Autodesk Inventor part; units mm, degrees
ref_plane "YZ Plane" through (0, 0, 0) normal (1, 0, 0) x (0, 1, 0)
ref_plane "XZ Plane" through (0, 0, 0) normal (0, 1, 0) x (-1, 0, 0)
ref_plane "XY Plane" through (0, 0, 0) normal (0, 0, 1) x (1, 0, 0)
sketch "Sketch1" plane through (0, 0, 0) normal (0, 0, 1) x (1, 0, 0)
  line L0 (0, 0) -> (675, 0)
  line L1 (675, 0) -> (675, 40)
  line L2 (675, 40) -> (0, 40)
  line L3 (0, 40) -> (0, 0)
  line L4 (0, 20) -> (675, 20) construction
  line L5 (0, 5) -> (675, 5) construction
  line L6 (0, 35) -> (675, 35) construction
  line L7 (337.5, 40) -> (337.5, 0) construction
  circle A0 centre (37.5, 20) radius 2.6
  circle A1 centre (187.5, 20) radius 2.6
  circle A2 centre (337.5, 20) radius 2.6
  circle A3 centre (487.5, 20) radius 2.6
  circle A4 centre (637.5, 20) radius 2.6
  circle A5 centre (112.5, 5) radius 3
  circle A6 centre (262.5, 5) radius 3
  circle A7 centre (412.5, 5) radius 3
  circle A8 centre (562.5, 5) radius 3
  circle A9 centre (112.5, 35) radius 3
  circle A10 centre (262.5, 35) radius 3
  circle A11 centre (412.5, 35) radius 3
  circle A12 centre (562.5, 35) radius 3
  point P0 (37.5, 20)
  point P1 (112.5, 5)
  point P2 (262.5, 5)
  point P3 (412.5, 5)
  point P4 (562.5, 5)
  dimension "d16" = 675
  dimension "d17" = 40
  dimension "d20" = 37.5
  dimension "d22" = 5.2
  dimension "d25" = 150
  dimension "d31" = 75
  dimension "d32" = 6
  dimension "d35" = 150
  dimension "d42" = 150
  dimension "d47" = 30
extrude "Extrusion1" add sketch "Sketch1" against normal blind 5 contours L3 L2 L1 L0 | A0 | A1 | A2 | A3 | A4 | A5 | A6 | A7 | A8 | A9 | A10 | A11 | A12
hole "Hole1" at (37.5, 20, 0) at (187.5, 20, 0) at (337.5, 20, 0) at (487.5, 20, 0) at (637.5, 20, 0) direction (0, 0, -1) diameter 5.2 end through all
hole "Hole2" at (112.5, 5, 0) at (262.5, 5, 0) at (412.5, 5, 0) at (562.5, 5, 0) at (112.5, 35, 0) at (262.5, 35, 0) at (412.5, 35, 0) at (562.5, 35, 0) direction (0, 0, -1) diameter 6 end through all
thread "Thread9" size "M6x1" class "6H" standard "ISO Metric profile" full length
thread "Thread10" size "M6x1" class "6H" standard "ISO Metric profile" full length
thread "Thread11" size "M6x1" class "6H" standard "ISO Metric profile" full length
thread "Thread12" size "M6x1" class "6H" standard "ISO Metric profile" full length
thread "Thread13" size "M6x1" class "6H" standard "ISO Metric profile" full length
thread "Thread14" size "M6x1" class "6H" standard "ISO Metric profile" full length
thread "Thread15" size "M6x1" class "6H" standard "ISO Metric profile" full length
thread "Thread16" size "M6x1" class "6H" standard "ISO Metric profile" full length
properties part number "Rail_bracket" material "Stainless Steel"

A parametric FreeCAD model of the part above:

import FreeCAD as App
import Part
import Sketcher
from FreeCAD import Vector

doc = App.newDocument("Part")
params = doc.addObject("Spreadsheet::Sheet", "Params")
for row, (alias, value) in enumerate([
    ("sketch1_width", "675 mm"),
    ("sketch1_height", "40 mm"),
    ("pad1_length", "5 mm"),
    ("sketch2_diameter", "5.2 mm"),
    ("hole_diameter", "5.2 mm"),
    ("sketch3_diameter", "6 mm"),
    ("hole2_diameter", "6 mm"),
], start=1):
    params.set(f"A{row}", alias)
    params.set(f"B{row}", "=" + value)
    params.setAlias(f"B{row}", alias)

body = doc.addObject("PartDesign::Body", "Body")

# Sketch on XY plane
sketch1 = body.newObject("Sketcher::SketchObject", "Sketch")
sketch1.AttachmentSupport = (doc.getObject("XY_Plane"), [""])
sketch1.MapMode = "FlatFace"
sketch1.addGeometry([
    Part.LineSegment(Vector(0, 40, 0), Vector(0, 0, 0)),
    Part.LineSegment(Vector(0, 0, 0), Vector(675, 0, 0)),
    Part.LineSegment(Vector(675, 0, 0), Vector(675, 40, 0)),
    Part.LineSegment(Vector(675, 40, 0), Vector(0, 40, 0)),
], False)
sketch1.addConstraint([
    Sketcher.Constraint("Coincident", 0, 2, 1, 1),
    Sketcher.Constraint("Coincident", 1, 2, 2, 1),
    Sketcher.Constraint("Coincident", 2, 2, 3, 1),
    Sketcher.Constraint("Coincident", 3, 2, 0, 1),
    Sketcher.Constraint("Vertical", 0),
    Sketcher.Constraint("Horizontal", 1),
    Sketcher.Constraint("Vertical", 2),
    Sketcher.Constraint("Horizontal", 3),
    Sketcher.Constraint("Coincident", 0, 2, -1, 1),
    Sketcher.Constraint("DistanceX", 1, 1, 1, 2, 675.0),
    Sketcher.Constraint("DistanceY", 0, 2, 0, 1, 40.0),
])
sketch1.setExpression("Constraints[9]", "Params.sketch1_width")
sketch1.setExpression("Constraints[10]", "Params.sketch1_height")
pad1 = body.newObject("PartDesign::Pad", "Pad")
pad1.Profile = sketch1
pad1.setExpression("Length", "Params.pad1_length")
pad1.Reversed = True

# Sketch on XY plane
sketch2 = body.newObject("Sketcher::SketchObject", "Sketch001")
sketch2.AttachmentSupport = (doc.getObject("XY_Plane"), [""])
sketch2.MapMode = "FlatFace"
sketch2.addGeometry([
    Part.Circle(Vector(37.5, 20, 0), Vector(0, 0, 1), 2.6),  # 0
    Part.Circle(Vector(187.5, 20, 0), Vector(0, 0, 1), 2.6),  # 1
    Part.Circle(Vector(337.5, 20, 0), Vector(0, 0, 1), 2.6),  # 2
    Part.Circle(Vector(487.5, 20, 0), Vector(0, 0, 1), 2.6),  # 3
    Part.Circle(Vector(637.5, 20, 0), Vector(0, 0, 1), 2.6),  # 4
], False)
sketch2.addConstraint([
    Sketcher.Constraint("Equal", 0, 1),
    Sketcher.Constraint("Equal", 1, 2),
    Sketcher.Constraint("Equal", 2, 3),
    Sketcher.Constraint("Equal", 3, 4),
    Sketcher.Constraint("Horizontal", 0, 3, 1, 3),
    Sketcher.Constraint("Horizontal", 1, 3, 2, 3),
    Sketcher.Constraint("Horizontal", 2, 3, 3, 3),
    Sketcher.Constraint("Horizontal", 3, 3, 4, 3),
    Sketcher.Constraint("Diameter", 0, 5.2),
    Sketcher.Constraint("DistanceY", -1, 1, 0, 3, 20.0),
    Sketcher.Constraint("DistanceX", 0, 3, 1, 3, 150.0),
    Sketcher.Constraint("DistanceX", 1, 3, 2, 3, 150.0),
    Sketcher.Constraint("DistanceX", 2, 3, 3, 3, 150.0),
    Sketcher.Constraint("DistanceX", 3, 3, 4, 3, 150.0),
    Sketcher.Constraint("DistanceX", -1, 1, 0, 3, 37.5),
])
sketch2.setExpression("Constraints[8]", "Params.sketch2_diameter")
doc.recompute()
hole = body.newObject("PartDesign::Hole", "Hole")
hole.Profile = sketch2
hole.ThreadType = "None"
hole.setExpression("Diameter", "Params.hole_diameter")
hole.DepthType = "ThroughAll"

# Sketch on XY plane
sketch3 = body.newObject("Sketcher::SketchObject", "Sketch002")
sketch3.AttachmentSupport = (doc.getObject("XY_Plane"), [""])
sketch3.MapMode = "FlatFace"
sketch3.addGeometry([
    Part.Circle(Vector(112.5, 5, 0), Vector(0, 0, 1), 3),  # 0
    Part.Circle(Vector(262.5, 5, 0), Vector(0, 0, 1), 3),  # 1
    Part.Circle(Vector(412.5, 5, 0), Vector(0, 0, 1), 3),  # 2
    Part.Circle(Vector(562.5, 5, 0), Vector(0, 0, 1), 3),  # 3
    Part.Circle(Vector(112.5, 35, 0), Vector(0, 0, 1), 3),  # 4
    Part.Circle(Vector(262.5, 35, 0), Vector(0, 0, 1), 3),  # 5
    Part.Circle(Vector(412.5, 35, 0), Vector(0, 0, 1), 3),  # 6
    Part.Circle(Vector(562.5, 35, 0), Vector(0, 0, 1), 3),  # 7
], False)
sketch3.addConstraint([
    Sketcher.Constraint("Equal", 0, 1),
    Sketcher.Constraint("Equal", 1, 2),
    Sketcher.Constraint("Equal", 2, 3),
    Sketcher.Constraint("Equal", 3, 4),
    Sketcher.Constraint("Equal", 4, 5),
    Sketcher.Constraint("Equal", 5, 6),
    Sketcher.Constraint("Equal", 6, 7),
    Sketcher.Constraint("Horizontal", 0, 3, 1, 3),
    Sketcher.Constraint("Horizontal", 1, 3, 2, 3),
    Sketcher.Constraint("Horizontal", 2, 3, 3, 3),
    Sketcher.Constraint("Horizontal", 4, 3, 5, 3),
    Sketcher.Constraint("Horizontal", 5, 3, 6, 3),
    Sketcher.Constraint("Horizontal", 6, 3, 7, 3),
    Sketcher.Constraint("Vertical", 0, 3, 4, 3),
    Sketcher.Constraint("Vertical", 1, 3, 5, 3),
    Sketcher.Constraint("Vertical", 2, 3, 6, 3),
    Sketcher.Constraint("Vertical", 3, 3, 7, 3),
    Sketcher.Constraint("Diameter", 0, 6.0),
    Sketcher.Constraint("DistanceY", -1, 1, 0, 3, 5.0),
    Sketcher.Constraint("DistanceY", -1, 1, 4, 3, 35.0),
    Sketcher.Constraint("DistanceX", 0, 3, 1, 3, 150.0),
    Sketcher.Constraint("DistanceX", 1, 3, 2, 3, 150.0),
    Sketcher.Constraint("DistanceX", 2, 3, 3, 3, 150.0),
    Sketcher.Constraint("DistanceX", -1, 1, 0, 3, 112.5),
])
sketch3.setExpression("Constraints[17]", "Params.sketch3_diameter")
doc.recompute()
hole2 = body.newObject("PartDesign::Hole", "Hole001")
hole2.Profile = sketch3
hole2.ThreadType = "None"
hole2.setExpression("Diameter", "Params.hole2_diameter")
hole2.DepthType = "ThroughAll"

doc.recompute()
